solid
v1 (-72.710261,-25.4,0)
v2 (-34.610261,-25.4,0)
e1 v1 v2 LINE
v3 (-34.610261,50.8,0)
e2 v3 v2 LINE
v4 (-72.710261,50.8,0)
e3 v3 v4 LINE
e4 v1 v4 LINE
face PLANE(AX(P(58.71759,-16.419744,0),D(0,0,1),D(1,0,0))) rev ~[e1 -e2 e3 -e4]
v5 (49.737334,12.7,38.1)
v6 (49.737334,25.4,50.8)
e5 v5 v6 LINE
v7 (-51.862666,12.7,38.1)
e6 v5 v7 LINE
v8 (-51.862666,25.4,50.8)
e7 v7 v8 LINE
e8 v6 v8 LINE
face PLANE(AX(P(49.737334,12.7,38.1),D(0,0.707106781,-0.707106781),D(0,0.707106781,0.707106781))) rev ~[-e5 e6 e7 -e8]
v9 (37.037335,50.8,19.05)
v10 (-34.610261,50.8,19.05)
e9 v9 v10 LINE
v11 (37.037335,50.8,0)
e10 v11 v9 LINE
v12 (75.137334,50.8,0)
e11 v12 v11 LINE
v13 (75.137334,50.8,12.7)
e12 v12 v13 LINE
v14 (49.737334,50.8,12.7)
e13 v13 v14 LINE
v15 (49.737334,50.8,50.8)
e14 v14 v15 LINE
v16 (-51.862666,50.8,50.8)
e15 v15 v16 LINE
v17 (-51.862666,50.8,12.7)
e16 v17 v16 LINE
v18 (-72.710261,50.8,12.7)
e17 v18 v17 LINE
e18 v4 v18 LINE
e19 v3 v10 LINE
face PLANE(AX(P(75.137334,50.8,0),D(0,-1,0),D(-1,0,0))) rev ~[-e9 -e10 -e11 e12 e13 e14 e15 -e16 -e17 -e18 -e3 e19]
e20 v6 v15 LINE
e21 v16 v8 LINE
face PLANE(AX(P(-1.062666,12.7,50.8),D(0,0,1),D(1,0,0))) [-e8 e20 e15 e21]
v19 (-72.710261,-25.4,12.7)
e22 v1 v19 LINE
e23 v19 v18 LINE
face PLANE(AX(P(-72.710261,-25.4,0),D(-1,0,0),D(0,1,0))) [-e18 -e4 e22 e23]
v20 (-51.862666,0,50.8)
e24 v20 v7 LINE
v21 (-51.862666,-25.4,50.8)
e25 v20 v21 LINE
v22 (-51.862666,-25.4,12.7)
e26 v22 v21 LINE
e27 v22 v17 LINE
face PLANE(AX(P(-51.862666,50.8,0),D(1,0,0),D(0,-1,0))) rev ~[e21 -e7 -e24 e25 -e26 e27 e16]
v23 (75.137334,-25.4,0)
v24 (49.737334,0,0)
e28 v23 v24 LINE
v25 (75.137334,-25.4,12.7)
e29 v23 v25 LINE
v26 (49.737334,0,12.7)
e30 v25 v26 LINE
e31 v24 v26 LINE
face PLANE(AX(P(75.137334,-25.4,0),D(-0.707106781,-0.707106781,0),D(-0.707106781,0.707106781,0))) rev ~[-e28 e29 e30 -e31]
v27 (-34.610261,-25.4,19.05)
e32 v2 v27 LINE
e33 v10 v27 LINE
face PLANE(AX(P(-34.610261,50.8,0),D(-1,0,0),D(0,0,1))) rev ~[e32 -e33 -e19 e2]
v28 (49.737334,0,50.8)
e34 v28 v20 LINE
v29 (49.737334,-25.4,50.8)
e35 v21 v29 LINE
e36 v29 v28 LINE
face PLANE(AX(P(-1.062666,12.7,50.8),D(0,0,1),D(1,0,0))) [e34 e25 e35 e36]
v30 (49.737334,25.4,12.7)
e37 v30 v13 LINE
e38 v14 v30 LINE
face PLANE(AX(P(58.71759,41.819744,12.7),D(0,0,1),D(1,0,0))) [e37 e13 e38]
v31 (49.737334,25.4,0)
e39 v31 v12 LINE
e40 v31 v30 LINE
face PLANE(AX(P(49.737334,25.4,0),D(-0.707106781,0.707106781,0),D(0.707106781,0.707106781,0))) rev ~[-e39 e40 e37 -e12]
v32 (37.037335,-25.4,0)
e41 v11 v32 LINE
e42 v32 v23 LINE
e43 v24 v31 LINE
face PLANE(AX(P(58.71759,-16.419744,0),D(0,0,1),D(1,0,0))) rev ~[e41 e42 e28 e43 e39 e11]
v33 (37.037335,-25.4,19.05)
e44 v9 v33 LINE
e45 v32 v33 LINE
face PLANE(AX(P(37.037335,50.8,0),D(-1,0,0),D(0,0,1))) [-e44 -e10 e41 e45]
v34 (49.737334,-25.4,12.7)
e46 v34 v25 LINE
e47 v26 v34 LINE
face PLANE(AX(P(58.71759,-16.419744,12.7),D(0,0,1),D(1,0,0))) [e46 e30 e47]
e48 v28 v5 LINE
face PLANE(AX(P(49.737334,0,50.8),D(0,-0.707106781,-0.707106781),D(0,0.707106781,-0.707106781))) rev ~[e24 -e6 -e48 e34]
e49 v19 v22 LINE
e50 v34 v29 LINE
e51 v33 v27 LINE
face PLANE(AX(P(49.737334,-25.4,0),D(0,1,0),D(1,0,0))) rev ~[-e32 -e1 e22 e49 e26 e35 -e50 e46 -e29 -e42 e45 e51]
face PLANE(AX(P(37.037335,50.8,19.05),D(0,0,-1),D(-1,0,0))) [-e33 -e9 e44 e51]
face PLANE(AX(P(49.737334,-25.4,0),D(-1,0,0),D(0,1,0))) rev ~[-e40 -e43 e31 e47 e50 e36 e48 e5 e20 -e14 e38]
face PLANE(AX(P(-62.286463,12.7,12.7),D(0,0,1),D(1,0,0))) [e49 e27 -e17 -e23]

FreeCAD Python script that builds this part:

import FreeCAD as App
import Part
import Sketcher
from FreeCAD import Vector
Q = App.Units.Quantity

doc = App.newDocument("Part")
body = doc.addObject("PartDesign::Body", "Body")

sketch1 = body.newObject("Sketcher::SketchObject", "Sketch")
sketch1.AttachmentSupport = (doc.getObject("XY_Plane"), [""])
sketch1.MapMode = "FlatFace"
sketch1.addGeometry(Part.LineSegment(Vector(-72.710261, 50.8, 0), Vector(-72.710261, -25.4, 0)), False)
sketch1.addGeometry(Part.LineSegment(Vector(-72.710261, -25.4, 0), Vector(-51.862665, -25.4, 0)), False)
sketch1.addGeometry(Part.LineSegment(Vector(-51.862665, -25.4, 0), Vector(-51.862665, 50.8, 0)), False)
sketch1.addGeometry(Part.LineSegment(Vector(-51.862665, 50.8, 0), Vector(-72.710261, 50.8, 0)), False)
sketch1.addConstraint(Sketcher.Constraint("Coincident", 0, 2, 1, 1))
sketch1.addConstraint(Sketcher.Constraint("Coincident", 1, 2, 2, 1))
sketch1.addConstraint(Sketcher.Constraint("Coincident", 2, 2, 3, 1))
sketch1.addConstraint(Sketcher.Constraint("Coincident", 3, 2, 0, 1))
sketch1.addConstraint(Sketcher.Constraint("Vertical", 0))
sketch1.addConstraint(Sketcher.Constraint("Horizontal", 1))
sketch1.addConstraint(Sketcher.Constraint("Vertical", 2))
sketch1.addConstraint(Sketcher.Constraint("Horizontal", 3))
sketch1.addConstraint(Sketcher.Constraint("DistanceY", 0, 2, 0, 1, Q("3 in")))
sketch1.addConstraint(Sketcher.Constraint("DistanceY", 0, 2, -1, 1, Q("1 in")))
sketch1.addConstraint(Sketcher.Constraint("DistanceX", 1, 1, 1, 2, 20.847595))
sketch1.addConstraint(Sketcher.Constraint("DistanceX", 0, 2, -1, 1, 72.710261))
pad1 = body.newObject("PartDesign::Pad", "Pad")
pad1.Profile = sketch1
pad1.Length = Q("0.5 in")

sketch2 = body.newObject("Sketcher::SketchObject", "Sketch001")
sketch2.AttachmentSupport = (doc.getObject("XY_Plane"), [""])
sketch2.MapMode = "FlatFace"
sketch2.addGeometry(Part.LineSegment(Vector(49.737334, 50.8, 0), Vector(-51.862666, 50.8, 0)), False)
sketch2.addGeometry(Part.LineSegment(Vector(-51.862666, 50.8, 0), Vector(-51.862666, -25.4, 0)), False)
sketch2.addGeometry(Part.LineSegment(Vector(-51.862666, -25.4, 0), Vector(49.737334, -25.4, 0)), False)
sketch2.addGeometry(Part.LineSegment(Vector(49.737334, -25.4, 0), Vector(49.737334, 50.8, 0)), False)
sketch2.addConstraint(Sketcher.Constraint("Coincident", 0, 2, 1, 1))
sketch2.addConstraint(Sketcher.Constraint("Coincident", 1, 2, 2, 1))
sketch2.addConstraint(Sketcher.Constraint("Coincident", 2, 2, 3, 1))
sketch2.addConstraint(Sketcher.Constraint("Coincident", 3, 2, 0, 1))
sketch2.addConstraint(Sketcher.Constraint("Horizontal", 0))
sketch2.addConstraint(Sketcher.Constraint("Vertical", 1))
sketch2.addConstraint(Sketcher.Constraint("Horizontal", 2))
sketch2.addConstraint(Sketcher.Constraint("Vertical", 3))
sketch2.addConstraint(Sketcher.Constraint("DistanceX", 0, 2, 0, 1, Q("4 in")))
sketch2.addConstraint(Sketcher.Constraint("DistanceY", 1, 2, 1, 1, Q("3 in")))
sketch2.addConstraint(Sketcher.Constraint("DistanceY", -1, 1, 0, 2, Q("2 in")))
sketch2.addConstraint(Sketcher.Constraint("DistanceX", 0, 2, -1, 1, 51.862666))
pad2 = body.newObject("PartDesign::Pad", "Pad001")
pad2.Profile = sketch2
pad2.Length = Q("2 in")

sketch3 = body.newObject("Sketcher::SketchObject", "Sketch002")
sketch3.AttachmentSupport = (doc.getObject("XY_Plane"), [""])
sketch3.MapMode = "FlatFace"
sketch3.addGeometry(Part.LineSegment(Vector(75.137334, 50.8, 0), Vector(49.737334, 50.8, 0)), False)
sketch3.addGeometry(Part.LineSegment(Vector(49.737334, 50.8, 0), Vector(49.737334, 25.4, 0)), False)
sketch3.addGeometry(Part.LineSegment(Vector(49.737334, 25.4, 0), Vector(75.137334, 50.8, 0)), False)
sketch3.addConstraint(Sketcher.Constraint("Coincident", 0, 2, 1, 1))
sketch3.addConstraint(Sketcher.Constraint("Coincident", 1, 2, 2, 1))
sketch3.addConstraint(Sketcher.Constraint("Coincident", 2, 2, 0, 1))
sketch3.addConstraint(Sketcher.Constraint("Horizontal", 0))
sketch3.addConstraint(Sketcher.Constraint("Vertical", 1))
sketch3.addConstraint(Sketcher.Constraint("Equal", 0, 1))
sketch3.addConstraint(Sketcher.Constraint("DistanceX", 0, 2, 0, 1, Q("1 in")))
sketch3.addConstraint(Sketcher.Constraint("DistanceY", -1, 1, 0, 2, Q("2 in")))
sketch3.addConstraint(Sketcher.Constraint("DistanceX", -1, 1, 0, 2, 49.737334))
pad3 = body.newObject("PartDesign::Pad", "Pad002")
pad3.Profile = sketch3
pad3.Length = Q("0.5 in")

sketch4 = body.newObject("Sketcher::SketchObject", "Sketch003")
sketch4.AttachmentSupport = (doc.getObject("XY_Plane"), [""])
sketch4.MapMode = "FlatFace"
sketch4.addGeometry(Part.LineSegment(Vector(49.737334, 0, 0), Vector(49.737334, -25.4, 0)), False)
sketch4.addGeometry(Part.LineSegment(Vector(49.737334, -25.4, 0), Vector(75.137334, -25.4, 0)), False)
sketch4.addGeometry(Part.LineSegment(Vector(75.137334, -25.4, 0), Vector(49.737334, 0, 0)), False)
sketch4.addConstraint(Sketcher.Constraint("Coincident", 0, 2, 1, 1))
sketch4.addConstraint(Sketcher.Constraint("Coincident", 1, 2, 2, 1))
sketch4.addConstraint(Sketcher.Constraint("Coincident", 2, 2, 0, 1))
sketch4.addConstraint(Sketcher.Constraint("Vertical", 0))
sketch4.addConstraint(Sketcher.Constraint("Horizontal", 1))
sketch4.addConstraint(Sketcher.Constraint("PointOnObject", 2, 2, -1))
sketch4.addConstraint(Sketcher.Constraint("Equal", 1, 0))
sketch4.addConstraint(Sketcher.Constraint("DistanceX", 1, 1, 1, 2, Q("1 in")))
sketch4.addConstraint(Sketcher.Constraint("DistanceX", -1, 1, 0, 2, 49.737334))
pad4 = body.newObject("PartDesign::Pad", "Pad003")
pad4.Profile = sketch4
pad4.Length = Q("0.5 in")

sketch5 = body.newObject("Sketcher::SketchObject", "Sketch004")
sketch5.AttachmentSupport = (doc.getObject("YZ_Plane"), [""])
sketch5.MapMode = "FlatFace"
sketch5.AttachmentOffset = App.Placement(Vector(0, 0, 49.737334), App.Rotation())
sketch5.addGeometry(Part.LineSegment(Vector(25.4, 50.8, 0), Vector(0, 50.8, 0)), False)
sketch5.addGeometry(Part.LineSegment(Vector(0, 50.8, 0), Vector(12.7, 38.1, 0)), False)
sketch5.addGeometry(Part.LineSegment(Vector(12.7, 38.1, 0), Vector(25.4, 50.8, 0)), False)
sketch5.addConstraint(Sketcher.Constraint("Coincident", 0, 2, 1, 1))
sketch5.addConstraint(Sketcher.Constraint("Coincident", 1, 2, 2, 1))
sketch5.addConstraint(Sketcher.Constraint("Coincident", 2, 2, 0, 1))
sketch5.addConstraint(Sketcher.Constraint("Horizontal", 0))
sketch5.addConstraint(Sketcher.Constraint("PointOnObject", 0, 2, -2))
sketch5.addConstraint(Sketcher.Constraint("Perpendicular", 1, 2))
sketch5.addConstraint(Sketcher.Constraint("Equal", 1, 2))
sketch5.addConstraint(Sketcher.Constraint("DistanceX", 0, 2, 0, 1, Q("1 in")))
sketch5.addConstraint(Sketcher.Constraint("DistanceY", -1, 1, 0, 2, Q("2 in")))
pocket1 = body.newObject("PartDesign::Pocket", "Pocket")
pocket1.Profile = sketch5
pocket1.Type = "ThroughAll"

sketch6 = body.newObject("Sketcher::SketchObject", "Sketch005")
sketch6.AttachmentSupport = (doc.getObject("XZ_Plane"), [""])
sketch6.MapMode = "FlatFace"
sketch6.AttachmentOffset = App.Placement(Vector(0, 0, -2 * 25.4), App.Rotation())
sketch6.addGeometry(Part.LineSegment(Vector(37.037335, 19.05, 0), Vector(37.037335, 0, 0)), False)
sketch6.addGeometry(Part.LineSegment(Vector(37.037335, 0, 0), Vector(-34.610261, 0, 0)), False)
sketch6.addGeometry(Part.LineSegment(Vector(-34.610261, 0, 0), Vector(-34.610261, 19.05, 0)), False)
sketch6.addGeometry(Part.LineSegment(Vector(-34.610261, 19.05, 0), Vector(37.037335, 19.05, 0)), False)
sketch6.addConstraint(Sketcher.Constraint("Coincident", 0, 2, 1, 1))
sketch6.addConstraint(Sketcher.Constraint("Coincident", 1, 2, 2, 1))
sketch6.addConstraint(Sketcher.Constraint("Coincident", 2, 2, 3, 1))
sketch6.addConstraint(Sketcher.Constraint("Coincident", 3, 2, 0, 1))
sketch6.addConstraint(Sketcher.Constraint("Vertical", 0))
sketch6.addConstraint(Sketcher.Constraint("Horizontal", 1))
sketch6.addConstraint(Sketcher.Constraint("Vertical", 2))
sketch6.addConstraint(Sketcher.Constraint("Horizontal", 3))
sketch6.addConstraint(Sketcher.Constraint("PointOnObject", 0, 2, -1))
sketch6.addConstraint(Sketcher.Constraint("DistanceY", 0, 2, 0, 1, Q("0.75 in")))
sketch6.addConstraint(Sketcher.Constraint("DistanceX", 1, 2, 1, 1, 71.647595))
sketch6.addConstraint(Sketcher.Constraint("DistanceX", 1, 2, -1, 1, 34.610261))
pocket2 = body.newObject("PartDesign::Pocket", "Pocket001")
pocket2.Profile = sketch6
pocket2.Length = Q("4 in")
pocket2.Reversed = True

doc.recompute()
